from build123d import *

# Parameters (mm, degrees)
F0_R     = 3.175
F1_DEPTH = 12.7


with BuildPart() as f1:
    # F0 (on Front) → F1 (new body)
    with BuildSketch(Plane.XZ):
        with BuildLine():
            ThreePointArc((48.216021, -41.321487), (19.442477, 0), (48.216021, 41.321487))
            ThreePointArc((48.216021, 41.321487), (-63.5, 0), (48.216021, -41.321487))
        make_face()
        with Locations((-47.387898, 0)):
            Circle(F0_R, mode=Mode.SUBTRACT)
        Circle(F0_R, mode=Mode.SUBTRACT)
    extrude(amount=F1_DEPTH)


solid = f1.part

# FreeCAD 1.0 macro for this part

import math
import FreeCAD as App
import Part
import Sketcher
from FreeCAD import Vector
Q = App.Units.Quantity

doc = App.newDocument("Part")
body = doc.addObject("PartDesign::Body", "Body")

sketch1 = doc.addObject("Sketcher::SketchObject", "Sketch")
body.addObject(sketch1)
sketch1.AttachmentSupport = (doc.XZ_Plane, [""])
sketch1.MapMode = "FlatFace"
sketch1.addGeometry([
    Part.ArcOfCircle(Part.Circle(Vector(63.5, 0, 0), Vector(0, 0, 1), 44.1), math.radians(110), math.radians(250)),
    Part.ArcOfCircle(Part.Circle(Vector(0, 0, 0), Vector(0, 0, 1), 63.5), math.radians(41), math.radians(319)),
    Part.Circle(Vector(-47.4, 0, 0), Vector(0, 0, 1), 3.2),
    Part.Circle(Vector(0, 0, 0), Vector(0, 0, 1), 3.2),
], False)
sketch1.addConstraint([
    Sketcher.Constraint("Coincident", 0, 1, 1, 1),
    Sketcher.Constraint("Coincident", 1, 2, 0, 2),
    Sketcher.Constraint("Coincident", 1, 3, -1, 1),
    Sketcher.Constraint("Coincident", 3, 3, -1, 1),
    Sketcher.Constraint("Equal", 2, 3),
    Sketcher.Constraint("PointOnObject", 0, 3, -1),
    Sketcher.Constraint("PointOnObject", 2, 3, -1),
    Sketcher.Constraint("Radius", 1, Q("2.5 in")),
    Sketcher.Constraint("Diameter", 2, Q("0.25 in")),
    Sketcher.Constraint("DistanceX", -1, 1, 0, 3, Q("2.5 in")),
    Sketcher.Constraint("Radius", 0, 44.057522),
    Sketcher.Constraint("DistanceX", 2, 3, 0, 1, 95.603919),
])
pad1 = doc.addObject("PartDesign::Pad", "Pad")
body.addObject(pad1)
pad1.Profile = sketch1
pad1.Length = Q("0.5 in")

doc.recompute()
